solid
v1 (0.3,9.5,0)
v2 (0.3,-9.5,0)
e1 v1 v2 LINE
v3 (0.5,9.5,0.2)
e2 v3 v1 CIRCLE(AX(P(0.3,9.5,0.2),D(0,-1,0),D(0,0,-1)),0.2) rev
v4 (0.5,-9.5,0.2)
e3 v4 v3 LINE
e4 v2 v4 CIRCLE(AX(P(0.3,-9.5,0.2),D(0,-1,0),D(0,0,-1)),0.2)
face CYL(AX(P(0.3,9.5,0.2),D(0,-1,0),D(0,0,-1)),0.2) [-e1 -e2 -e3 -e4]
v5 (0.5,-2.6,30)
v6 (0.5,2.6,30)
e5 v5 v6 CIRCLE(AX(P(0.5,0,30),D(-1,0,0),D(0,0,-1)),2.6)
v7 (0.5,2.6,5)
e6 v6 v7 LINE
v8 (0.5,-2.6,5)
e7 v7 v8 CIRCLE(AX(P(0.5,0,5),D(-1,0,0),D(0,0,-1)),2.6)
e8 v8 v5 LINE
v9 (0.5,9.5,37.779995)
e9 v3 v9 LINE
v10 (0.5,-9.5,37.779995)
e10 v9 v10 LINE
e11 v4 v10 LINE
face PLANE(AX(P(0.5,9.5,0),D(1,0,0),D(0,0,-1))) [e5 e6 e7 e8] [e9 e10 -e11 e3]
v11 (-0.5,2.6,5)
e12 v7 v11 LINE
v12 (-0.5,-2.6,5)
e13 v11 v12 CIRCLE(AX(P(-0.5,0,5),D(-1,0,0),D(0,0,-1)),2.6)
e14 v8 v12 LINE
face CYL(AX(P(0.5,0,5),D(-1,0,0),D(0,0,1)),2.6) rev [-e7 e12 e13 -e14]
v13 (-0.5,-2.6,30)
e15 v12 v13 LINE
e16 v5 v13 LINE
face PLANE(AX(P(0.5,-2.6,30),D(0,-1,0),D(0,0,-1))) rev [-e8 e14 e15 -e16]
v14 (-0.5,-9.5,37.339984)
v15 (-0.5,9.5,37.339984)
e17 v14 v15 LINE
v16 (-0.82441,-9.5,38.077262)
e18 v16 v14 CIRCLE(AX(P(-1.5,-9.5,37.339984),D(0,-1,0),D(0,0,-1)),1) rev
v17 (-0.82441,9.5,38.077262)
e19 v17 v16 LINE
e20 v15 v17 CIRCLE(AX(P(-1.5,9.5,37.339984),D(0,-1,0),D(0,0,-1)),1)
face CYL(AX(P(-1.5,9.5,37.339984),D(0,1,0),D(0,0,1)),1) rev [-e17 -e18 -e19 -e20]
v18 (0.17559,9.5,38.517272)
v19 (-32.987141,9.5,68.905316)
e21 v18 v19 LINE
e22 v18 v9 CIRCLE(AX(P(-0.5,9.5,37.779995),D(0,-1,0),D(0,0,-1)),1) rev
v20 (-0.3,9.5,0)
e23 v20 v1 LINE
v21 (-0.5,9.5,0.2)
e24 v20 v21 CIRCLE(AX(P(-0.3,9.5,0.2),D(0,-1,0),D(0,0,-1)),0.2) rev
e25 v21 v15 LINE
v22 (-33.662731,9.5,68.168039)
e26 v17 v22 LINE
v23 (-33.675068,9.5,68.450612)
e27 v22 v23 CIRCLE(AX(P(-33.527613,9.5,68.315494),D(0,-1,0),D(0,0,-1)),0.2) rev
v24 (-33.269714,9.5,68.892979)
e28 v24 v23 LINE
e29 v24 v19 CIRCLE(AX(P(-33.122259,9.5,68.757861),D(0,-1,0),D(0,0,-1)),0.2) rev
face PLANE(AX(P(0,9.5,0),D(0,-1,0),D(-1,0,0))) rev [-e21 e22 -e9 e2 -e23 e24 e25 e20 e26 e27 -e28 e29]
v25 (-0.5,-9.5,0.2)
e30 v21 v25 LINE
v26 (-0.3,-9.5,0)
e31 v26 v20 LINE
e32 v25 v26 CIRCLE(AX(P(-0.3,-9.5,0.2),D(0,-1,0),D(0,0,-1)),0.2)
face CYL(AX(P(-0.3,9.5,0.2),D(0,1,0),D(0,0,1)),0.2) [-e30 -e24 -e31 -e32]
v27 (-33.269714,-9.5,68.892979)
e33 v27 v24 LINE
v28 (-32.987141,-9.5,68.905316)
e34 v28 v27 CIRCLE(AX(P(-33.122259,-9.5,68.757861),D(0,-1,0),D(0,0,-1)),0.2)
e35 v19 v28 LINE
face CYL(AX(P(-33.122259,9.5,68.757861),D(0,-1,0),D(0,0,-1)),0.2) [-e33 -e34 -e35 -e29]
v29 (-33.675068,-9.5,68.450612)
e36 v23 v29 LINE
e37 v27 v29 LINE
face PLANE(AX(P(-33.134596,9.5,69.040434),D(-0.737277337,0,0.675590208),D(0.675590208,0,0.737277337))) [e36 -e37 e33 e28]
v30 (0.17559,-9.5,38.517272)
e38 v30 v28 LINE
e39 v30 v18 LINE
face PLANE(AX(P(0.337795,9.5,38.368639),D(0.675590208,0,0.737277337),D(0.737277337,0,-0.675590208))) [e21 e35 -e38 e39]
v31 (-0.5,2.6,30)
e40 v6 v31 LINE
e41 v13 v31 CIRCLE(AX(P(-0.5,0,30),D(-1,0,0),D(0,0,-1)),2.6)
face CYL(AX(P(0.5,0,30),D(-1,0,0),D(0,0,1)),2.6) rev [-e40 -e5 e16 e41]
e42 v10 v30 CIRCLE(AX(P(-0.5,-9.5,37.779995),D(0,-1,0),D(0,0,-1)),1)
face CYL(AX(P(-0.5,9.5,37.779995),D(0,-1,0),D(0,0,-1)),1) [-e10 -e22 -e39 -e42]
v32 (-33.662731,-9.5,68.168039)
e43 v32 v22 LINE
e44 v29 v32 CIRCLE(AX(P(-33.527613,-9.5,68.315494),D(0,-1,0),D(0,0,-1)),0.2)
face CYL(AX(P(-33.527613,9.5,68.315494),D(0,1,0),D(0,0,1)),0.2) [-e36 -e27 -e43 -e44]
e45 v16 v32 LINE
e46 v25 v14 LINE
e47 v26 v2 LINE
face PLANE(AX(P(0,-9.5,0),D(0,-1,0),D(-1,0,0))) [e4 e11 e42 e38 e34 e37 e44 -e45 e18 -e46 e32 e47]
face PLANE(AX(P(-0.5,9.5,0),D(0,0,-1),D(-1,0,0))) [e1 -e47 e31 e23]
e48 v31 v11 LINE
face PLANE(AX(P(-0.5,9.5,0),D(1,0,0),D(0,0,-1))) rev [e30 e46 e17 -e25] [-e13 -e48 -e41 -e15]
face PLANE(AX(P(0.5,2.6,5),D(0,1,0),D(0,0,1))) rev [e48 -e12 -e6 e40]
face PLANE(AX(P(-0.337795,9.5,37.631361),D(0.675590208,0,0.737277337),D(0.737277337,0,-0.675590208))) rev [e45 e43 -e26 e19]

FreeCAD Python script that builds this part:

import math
import FreeCAD as App
import Part
import Sketcher
Q = App.Units.Quantity


def edges_at(feature, points):
    """Names of the edges that pass closest to the given points."""
    edges = feature.Shape.Edges
    near = lambda p: min(range(len(edges)), key=lambda i: edges[i].distToShape(Part.Vertex(*p))[0])
    return sorted({f"Edge{near(p) + 1}" for p in points})

doc = App.newDocument("Part")
body = doc.addObject("PartDesign::Body", "Body")

# Sketch on XZ plane
sketch1 = body.newObject("Sketcher::SketchObject", "Sketch")
sketch1.AttachmentSupport = (doc.getObject("XZ_Plane"), [""])
sketch1.MapMode = "FlatFace"
sketch1.addGeometry([
    Part.LineSegment(App.Vector(-0.5, 0, 0), App.Vector(-0.5, 37.8, 0)),  # 0
    Part.LineSegment(App.Vector(-0.5, 37.8, 0), App.Vector(-33.8, 68.3, 0)),  # 1
    Part.LineSegment(App.Vector(-33.8, 68.3, 0), App.Vector(-33.1, 69, 0)),  # 2
    Part.LineSegment(App.Vector(-33.1, 69, 0), App.Vector(0.5, 38.2, 0)),  # 3
    Part.LineSegment(App.Vector(0.5, 38.2, 0), App.Vector(0.5, 0, 0)),  # 4
    Part.LineSegment(App.Vector(0.5, 0, 0), App.Vector(-0.5, 0, 0)),  # 5
], False)
sketch1.addConstraint([
    Sketcher.Constraint("Coincident", 0, 2, 1, 1),
    Sketcher.Constraint("Coincident", 1, 2, 2, 1),
    Sketcher.Constraint("Coincident", 2, 2, 3, 1),
    Sketcher.Constraint("Coincident", 3, 2, 4, 1),
    Sketcher.Constraint("Coincident", 4, 2, 5, 1),
    Sketcher.Constraint("Coincident", 5, 2, 0, 1),
    Sketcher.Constraint("Vertical", 0),
    Sketcher.Constraint("Vertical", 4),
    Sketcher.Constraint("Horizontal", 5),
    Sketcher.Constraint("Symmetric", 4, 2, 5, 2, -1, 1),
    Sketcher.Constraint("Perpendicular", 1, 2),
    Sketcher.Constraint("Perpendicular", 2, 3),
    Sketcher.Constraint("DistanceX", 5, 2, 5, 1, 1.0),
    Sketcher.Constraint("Distance", 2, 1.0),
    Sketcher.Constraint("Angle", 1, Q("137.5 deg")),
    Sketcher.Constraint("DistanceY", 0, 1, 0, 2, 37.779995),
    Sketcher.Constraint("DistanceY", 0, 2, 2, 2, 31.260439),
])
pad1 = body.newObject("PartDesign::Pad", "Pad")
pad1.Profile = sketch1
pad1.Length = 19
pad1.Midplane = True
doc.recompute()

fillet = body.newObject("PartDesign::Fillet", "Fillet")
fillet.Base = (pad1, edges_at(pad1, [(-0.5, 0, 37.78), (0.5, 0, 38.22)]))
fillet.Radius = 1
doc.recompute()

fillet2 = body.newObject("PartDesign::Fillet", "Fillet001")
fillet2.Base = (fillet, edges_at(fillet, [
    (-33.81, 0, 68.303),
    (-0.5, 0, 0),
    (0.5, 0, 0),
    (-33.135, 0, 69.04),
]))
fillet2.Radius = 0.2

# Sketch on YZ plane
sketch2 = body.newObject("Sketcher::SketchObject", "Sketch001")
sketch2.AttachmentSupport = (doc.getObject("YZ_Plane"), [""])
sketch2.MapMode = "FlatFace"
sketch2.AttachmentOffset = App.Placement(App.Vector(0, 0, -0.5), App.Rotation())
sketch2.addGeometry([
    Part.LineSegment(App.Vector(2.6, 30, 0), App.Vector(2.6, 5, 0)),
    Part.ArcOfCircle(Part.Circle(App.Vector(0, 5, 0), App.Vector(0, 0, 1), 2.6), math.radians(180), math.radians(360)),
    Part.LineSegment(App.Vector(-2.6, 5, 0), App.Vector(-2.6, 30, 0)),
    Part.ArcOfCircle(Part.Circle(App.Vector(0, 30, 0), App.Vector(0, 0, 1), 2.6), math.radians(0), math.radians(180)),
], False)
sketch2.addConstraint([
    Sketcher.Constraint("Tangent", 0, 2, 1, 2),
    Sketcher.Constraint("Tangent", 1, 1, 2, 1),
    Sketcher.Constraint("Tangent", 2, 2, 3, 2),
    Sketcher.Constraint("Tangent", 3, 1, 0, 1),
    Sketcher.Constraint("Vertical", 0),
    Sketcher.Constraint("Vertical", 2),
    Sketcher.Constraint("PointOnObject", 1, 3, -2),
    Sketcher.Constraint("Radius", 1, 2.6),
    Sketcher.Constraint("DistanceY", 0, 2, 0, 1, 25.0),
    Sketcher.Constraint("DistanceY", -1, 1, 1, 3, 5.0),
])
pocket1 = body.newObject("PartDesign::Pocket", "Pocket")
pocket1.Profile = sketch2
pocket1.Type = "ThroughAll"
pocket1.Reversed = True

doc.recompute()
